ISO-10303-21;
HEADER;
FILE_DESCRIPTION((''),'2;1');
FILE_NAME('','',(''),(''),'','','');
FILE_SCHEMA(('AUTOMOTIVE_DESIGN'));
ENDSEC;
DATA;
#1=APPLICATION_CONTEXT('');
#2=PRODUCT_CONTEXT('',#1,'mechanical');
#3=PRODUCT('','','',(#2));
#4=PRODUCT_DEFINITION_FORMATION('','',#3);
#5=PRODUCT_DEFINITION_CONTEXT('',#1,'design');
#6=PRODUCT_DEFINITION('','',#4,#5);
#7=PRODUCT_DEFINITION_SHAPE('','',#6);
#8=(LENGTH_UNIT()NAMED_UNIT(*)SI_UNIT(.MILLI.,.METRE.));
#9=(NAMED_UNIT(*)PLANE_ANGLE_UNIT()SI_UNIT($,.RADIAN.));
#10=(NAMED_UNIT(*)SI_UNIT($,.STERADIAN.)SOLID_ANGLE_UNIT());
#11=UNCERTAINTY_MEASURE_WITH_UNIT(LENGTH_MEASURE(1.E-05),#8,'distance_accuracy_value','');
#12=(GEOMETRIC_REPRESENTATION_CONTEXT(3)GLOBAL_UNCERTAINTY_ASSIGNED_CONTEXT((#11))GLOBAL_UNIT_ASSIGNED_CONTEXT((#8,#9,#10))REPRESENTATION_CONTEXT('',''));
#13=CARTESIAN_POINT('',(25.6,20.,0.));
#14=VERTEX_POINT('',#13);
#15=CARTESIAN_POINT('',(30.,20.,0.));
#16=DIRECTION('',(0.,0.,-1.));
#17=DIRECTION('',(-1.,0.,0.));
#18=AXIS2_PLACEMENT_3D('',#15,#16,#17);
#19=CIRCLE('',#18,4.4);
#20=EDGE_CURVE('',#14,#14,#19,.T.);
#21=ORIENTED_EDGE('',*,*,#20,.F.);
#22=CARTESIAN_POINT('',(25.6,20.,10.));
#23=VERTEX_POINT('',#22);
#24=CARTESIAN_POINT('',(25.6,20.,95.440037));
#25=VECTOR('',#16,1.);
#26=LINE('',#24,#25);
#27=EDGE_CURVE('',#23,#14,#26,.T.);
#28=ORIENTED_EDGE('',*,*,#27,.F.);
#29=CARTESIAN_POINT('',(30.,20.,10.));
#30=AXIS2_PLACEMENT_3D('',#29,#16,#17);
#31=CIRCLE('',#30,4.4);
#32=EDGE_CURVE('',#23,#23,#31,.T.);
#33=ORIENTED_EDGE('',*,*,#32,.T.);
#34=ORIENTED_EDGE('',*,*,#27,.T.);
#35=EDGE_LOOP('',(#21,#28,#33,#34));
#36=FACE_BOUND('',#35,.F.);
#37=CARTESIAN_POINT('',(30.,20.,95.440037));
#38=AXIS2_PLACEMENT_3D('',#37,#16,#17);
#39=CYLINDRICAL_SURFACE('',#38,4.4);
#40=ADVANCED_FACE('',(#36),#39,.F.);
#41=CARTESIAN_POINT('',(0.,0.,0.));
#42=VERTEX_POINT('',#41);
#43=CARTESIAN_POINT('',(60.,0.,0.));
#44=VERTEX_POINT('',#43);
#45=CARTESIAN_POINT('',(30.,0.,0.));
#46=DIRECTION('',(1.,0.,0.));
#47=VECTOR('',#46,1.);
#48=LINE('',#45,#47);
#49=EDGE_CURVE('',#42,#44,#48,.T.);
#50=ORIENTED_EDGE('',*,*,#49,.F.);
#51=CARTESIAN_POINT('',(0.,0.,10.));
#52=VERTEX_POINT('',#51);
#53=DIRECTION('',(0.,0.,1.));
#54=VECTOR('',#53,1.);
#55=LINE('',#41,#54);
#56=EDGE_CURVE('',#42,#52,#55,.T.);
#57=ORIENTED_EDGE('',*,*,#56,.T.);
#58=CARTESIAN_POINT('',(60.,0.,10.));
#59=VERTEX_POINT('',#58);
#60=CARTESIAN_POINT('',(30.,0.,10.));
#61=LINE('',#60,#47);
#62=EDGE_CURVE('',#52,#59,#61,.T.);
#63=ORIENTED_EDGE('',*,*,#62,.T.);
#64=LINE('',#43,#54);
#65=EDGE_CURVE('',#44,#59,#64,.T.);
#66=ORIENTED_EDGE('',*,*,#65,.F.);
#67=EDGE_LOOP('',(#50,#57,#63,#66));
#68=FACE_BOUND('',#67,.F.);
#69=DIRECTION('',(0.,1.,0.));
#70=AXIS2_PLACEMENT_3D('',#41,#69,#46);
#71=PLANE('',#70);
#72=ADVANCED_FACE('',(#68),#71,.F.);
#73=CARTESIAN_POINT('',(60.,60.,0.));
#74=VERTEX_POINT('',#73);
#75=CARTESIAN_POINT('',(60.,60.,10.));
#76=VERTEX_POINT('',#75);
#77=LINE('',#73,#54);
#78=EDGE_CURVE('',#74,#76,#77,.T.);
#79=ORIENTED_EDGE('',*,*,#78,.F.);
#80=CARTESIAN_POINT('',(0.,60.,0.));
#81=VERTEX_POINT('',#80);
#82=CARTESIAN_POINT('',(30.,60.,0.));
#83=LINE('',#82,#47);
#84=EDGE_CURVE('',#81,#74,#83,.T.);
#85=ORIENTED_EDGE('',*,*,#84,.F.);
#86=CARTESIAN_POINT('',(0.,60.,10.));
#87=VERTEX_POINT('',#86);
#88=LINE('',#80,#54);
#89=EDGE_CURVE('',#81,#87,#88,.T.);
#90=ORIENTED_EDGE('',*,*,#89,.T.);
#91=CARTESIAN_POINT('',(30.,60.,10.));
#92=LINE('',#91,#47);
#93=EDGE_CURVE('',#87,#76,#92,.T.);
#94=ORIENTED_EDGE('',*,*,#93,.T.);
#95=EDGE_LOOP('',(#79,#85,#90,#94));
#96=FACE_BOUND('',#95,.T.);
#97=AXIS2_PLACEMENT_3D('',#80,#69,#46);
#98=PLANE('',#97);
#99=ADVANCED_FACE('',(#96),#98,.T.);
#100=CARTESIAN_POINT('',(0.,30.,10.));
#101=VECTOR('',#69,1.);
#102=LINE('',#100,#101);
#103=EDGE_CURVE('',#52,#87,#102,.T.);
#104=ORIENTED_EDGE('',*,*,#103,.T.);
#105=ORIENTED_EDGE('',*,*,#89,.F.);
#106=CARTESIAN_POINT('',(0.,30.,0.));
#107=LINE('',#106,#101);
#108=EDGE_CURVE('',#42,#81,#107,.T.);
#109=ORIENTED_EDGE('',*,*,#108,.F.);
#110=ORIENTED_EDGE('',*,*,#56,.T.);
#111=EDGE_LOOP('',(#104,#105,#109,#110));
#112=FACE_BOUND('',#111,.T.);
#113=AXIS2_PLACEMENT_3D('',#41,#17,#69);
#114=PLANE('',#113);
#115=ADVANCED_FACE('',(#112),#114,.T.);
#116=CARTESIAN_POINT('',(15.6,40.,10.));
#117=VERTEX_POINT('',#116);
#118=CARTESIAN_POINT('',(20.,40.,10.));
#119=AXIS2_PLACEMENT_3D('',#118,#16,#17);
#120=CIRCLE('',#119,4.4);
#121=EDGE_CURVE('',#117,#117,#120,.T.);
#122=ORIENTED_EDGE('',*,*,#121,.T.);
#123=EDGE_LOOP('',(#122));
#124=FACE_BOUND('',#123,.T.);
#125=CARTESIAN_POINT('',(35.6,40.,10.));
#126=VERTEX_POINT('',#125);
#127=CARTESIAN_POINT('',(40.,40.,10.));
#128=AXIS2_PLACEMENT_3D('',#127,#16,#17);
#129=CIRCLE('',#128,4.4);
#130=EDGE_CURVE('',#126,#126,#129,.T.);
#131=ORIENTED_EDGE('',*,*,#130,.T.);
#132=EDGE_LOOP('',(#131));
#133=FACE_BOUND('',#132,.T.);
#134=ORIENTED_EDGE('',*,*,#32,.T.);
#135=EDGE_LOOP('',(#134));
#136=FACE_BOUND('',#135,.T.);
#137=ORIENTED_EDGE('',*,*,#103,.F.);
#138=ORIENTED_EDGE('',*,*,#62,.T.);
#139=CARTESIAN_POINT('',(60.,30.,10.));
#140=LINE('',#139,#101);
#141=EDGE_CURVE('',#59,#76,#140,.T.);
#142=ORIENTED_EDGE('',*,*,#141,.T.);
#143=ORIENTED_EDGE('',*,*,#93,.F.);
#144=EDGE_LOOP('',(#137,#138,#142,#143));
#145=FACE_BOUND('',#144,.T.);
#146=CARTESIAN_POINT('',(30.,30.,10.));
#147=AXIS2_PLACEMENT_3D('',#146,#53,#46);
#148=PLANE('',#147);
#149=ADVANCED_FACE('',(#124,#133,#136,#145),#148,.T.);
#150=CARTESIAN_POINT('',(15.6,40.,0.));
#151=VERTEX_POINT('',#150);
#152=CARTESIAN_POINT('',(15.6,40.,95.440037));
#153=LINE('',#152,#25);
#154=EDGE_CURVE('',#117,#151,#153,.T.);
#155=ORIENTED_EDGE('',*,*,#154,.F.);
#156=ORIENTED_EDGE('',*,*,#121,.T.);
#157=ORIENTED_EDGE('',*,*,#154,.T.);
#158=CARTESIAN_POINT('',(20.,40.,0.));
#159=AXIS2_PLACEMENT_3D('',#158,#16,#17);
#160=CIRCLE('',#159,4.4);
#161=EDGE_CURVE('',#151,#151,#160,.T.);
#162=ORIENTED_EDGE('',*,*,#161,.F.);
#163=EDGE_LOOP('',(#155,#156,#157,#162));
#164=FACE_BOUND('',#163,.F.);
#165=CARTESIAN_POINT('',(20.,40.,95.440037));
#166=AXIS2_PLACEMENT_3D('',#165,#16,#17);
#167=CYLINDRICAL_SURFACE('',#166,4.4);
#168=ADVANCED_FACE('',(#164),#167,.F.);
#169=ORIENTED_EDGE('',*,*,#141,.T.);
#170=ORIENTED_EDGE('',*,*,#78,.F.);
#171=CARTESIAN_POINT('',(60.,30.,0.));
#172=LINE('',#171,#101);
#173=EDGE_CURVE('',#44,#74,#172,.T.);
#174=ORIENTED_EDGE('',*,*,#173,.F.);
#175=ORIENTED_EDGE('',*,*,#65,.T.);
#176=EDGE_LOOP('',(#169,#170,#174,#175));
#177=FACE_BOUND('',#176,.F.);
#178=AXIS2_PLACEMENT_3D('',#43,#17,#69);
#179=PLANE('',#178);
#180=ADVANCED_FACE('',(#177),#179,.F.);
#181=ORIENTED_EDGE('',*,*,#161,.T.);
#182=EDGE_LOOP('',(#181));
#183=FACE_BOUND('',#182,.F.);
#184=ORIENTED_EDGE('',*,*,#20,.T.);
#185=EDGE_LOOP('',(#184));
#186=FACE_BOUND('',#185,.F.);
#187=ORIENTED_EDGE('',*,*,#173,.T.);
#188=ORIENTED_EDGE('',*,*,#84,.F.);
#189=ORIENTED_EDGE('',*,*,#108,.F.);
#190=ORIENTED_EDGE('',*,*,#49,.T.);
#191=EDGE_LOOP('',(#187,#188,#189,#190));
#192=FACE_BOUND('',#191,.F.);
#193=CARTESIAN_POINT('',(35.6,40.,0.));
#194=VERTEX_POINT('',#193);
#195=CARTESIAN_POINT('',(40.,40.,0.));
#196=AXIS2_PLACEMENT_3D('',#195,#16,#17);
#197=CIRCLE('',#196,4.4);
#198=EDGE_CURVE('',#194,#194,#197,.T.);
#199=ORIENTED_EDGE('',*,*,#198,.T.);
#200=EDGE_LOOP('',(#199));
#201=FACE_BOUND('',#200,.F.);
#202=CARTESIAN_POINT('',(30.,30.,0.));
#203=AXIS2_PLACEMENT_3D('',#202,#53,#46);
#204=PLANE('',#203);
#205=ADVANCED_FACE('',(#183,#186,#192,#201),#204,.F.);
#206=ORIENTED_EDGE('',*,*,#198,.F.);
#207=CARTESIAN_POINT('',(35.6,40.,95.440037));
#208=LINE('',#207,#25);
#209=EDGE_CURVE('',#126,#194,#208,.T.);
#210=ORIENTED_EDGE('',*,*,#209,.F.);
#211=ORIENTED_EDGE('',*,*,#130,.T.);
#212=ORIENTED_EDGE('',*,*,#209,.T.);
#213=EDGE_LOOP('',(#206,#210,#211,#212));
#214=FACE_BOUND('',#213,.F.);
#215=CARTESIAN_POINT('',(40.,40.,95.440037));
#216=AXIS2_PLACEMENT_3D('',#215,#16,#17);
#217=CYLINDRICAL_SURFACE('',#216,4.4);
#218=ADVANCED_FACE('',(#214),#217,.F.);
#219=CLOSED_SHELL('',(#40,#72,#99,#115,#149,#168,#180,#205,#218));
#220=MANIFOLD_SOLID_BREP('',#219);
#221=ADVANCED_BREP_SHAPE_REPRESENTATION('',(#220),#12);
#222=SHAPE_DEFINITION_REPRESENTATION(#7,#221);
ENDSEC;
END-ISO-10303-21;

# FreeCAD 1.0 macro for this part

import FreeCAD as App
import Part
import Sketcher

V = App.Vector

doc = App.newDocument("Part")
body = doc.addObject("PartDesign::Body", "Body")

# Sketch on XY plane
sketch1 = body.newObject("Sketcher::SketchObject", "Sketch")
sketch1.AttachmentSupport = (doc.getObject("XY_Plane"), [""])
sketch1.MapMode = "FlatFace"
sketch1.addGeometry([
    Part.LineSegment(V(0, 60, 0), V(0, 0, 0)),
    Part.LineSegment(V(0, 0, 0), V(60, 0, 0)),
    Part.LineSegment(V(60, 0, 0), V(60, 60, 0)),
    Part.LineSegment(V(60, 60, 0), V(0, 60, 0)),
], False)
sketch1.addConstraint([
    Sketcher.Constraint("Coincident", 0, 2, 1, 1),
    Sketcher.Constraint("Coincident", 1, 2, 2, 1),
    Sketcher.Constraint("Coincident", 2, 2, 3, 1),
    Sketcher.Constraint("Coincident", 3, 2, 0, 1),
    Sketcher.Constraint("Vertical", 0),
    Sketcher.Constraint("Horizontal", 1),
    Sketcher.Constraint("Vertical", 2),
    Sketcher.Constraint("Horizontal", 3),
    Sketcher.Constraint("Coincident", 0, 2, -1, 1),
    Sketcher.Constraint("Equal", 3, 0),
    Sketcher.Constraint("DistanceX", 1, 1, 1, 2, 60.0),
])
pad1 = body.newObject("PartDesign::Pad", "Pad")
pad1.Profile = sketch1
pad1.Length = 10

# Sketch on XY plane
sketch2 = body.newObject("Sketcher::SketchObject", "Sketch001")
sketch2.AttachmentSupport = (doc.getObject("XY_Plane"), [""])
sketch2.MapMode = "FlatFace"
sketch2.AttachmentOffset = App.Placement(V(0, 0, 10), App.Rotation())
sketch2.addGeometry([
    Part.Circle(V(20, 40, 0), V(0, 0, 1), 4.4),
    Part.Circle(V(40, 40, 0), V(0, 0, 1), 4.4),
    Part.Circle(V(30, 20, 0), V(0, 0, 1), 4.4),
], False)
sketch2.addConstraint([
    Sketcher.Constraint("Equal", 0, 1),
    Sketcher.Constraint("Equal", 1, 2),
    Sketcher.Constraint("Horizontal", 0, 3, 1, 3),
    Sketcher.Constraint("Diameter", 0, 8.8),
    Sketcher.Constraint("DistanceX", -1, 1, 0, 3, 20.0),
    Sketcher.Constraint("DistanceY", -1, 1, 0, 3, 40.0),
    Sketcher.Constraint("DistanceX", -1, 1, 1, 3, 40.0),
    Sketcher.Constraint("DistanceX", -1, 1, 2, 3, 30.0),
    Sketcher.Constraint("DistanceY", -1, 1, 2, 3, 20.0),
])
doc.recompute()
hole = body.newObject("PartDesign::Hole", "Hole")
hole.Profile = sketch2
hole.ThreadType = "None"
hole.Diameter = 8.8
hole.DepthType = "ThroughAll"

doc.recompute()
